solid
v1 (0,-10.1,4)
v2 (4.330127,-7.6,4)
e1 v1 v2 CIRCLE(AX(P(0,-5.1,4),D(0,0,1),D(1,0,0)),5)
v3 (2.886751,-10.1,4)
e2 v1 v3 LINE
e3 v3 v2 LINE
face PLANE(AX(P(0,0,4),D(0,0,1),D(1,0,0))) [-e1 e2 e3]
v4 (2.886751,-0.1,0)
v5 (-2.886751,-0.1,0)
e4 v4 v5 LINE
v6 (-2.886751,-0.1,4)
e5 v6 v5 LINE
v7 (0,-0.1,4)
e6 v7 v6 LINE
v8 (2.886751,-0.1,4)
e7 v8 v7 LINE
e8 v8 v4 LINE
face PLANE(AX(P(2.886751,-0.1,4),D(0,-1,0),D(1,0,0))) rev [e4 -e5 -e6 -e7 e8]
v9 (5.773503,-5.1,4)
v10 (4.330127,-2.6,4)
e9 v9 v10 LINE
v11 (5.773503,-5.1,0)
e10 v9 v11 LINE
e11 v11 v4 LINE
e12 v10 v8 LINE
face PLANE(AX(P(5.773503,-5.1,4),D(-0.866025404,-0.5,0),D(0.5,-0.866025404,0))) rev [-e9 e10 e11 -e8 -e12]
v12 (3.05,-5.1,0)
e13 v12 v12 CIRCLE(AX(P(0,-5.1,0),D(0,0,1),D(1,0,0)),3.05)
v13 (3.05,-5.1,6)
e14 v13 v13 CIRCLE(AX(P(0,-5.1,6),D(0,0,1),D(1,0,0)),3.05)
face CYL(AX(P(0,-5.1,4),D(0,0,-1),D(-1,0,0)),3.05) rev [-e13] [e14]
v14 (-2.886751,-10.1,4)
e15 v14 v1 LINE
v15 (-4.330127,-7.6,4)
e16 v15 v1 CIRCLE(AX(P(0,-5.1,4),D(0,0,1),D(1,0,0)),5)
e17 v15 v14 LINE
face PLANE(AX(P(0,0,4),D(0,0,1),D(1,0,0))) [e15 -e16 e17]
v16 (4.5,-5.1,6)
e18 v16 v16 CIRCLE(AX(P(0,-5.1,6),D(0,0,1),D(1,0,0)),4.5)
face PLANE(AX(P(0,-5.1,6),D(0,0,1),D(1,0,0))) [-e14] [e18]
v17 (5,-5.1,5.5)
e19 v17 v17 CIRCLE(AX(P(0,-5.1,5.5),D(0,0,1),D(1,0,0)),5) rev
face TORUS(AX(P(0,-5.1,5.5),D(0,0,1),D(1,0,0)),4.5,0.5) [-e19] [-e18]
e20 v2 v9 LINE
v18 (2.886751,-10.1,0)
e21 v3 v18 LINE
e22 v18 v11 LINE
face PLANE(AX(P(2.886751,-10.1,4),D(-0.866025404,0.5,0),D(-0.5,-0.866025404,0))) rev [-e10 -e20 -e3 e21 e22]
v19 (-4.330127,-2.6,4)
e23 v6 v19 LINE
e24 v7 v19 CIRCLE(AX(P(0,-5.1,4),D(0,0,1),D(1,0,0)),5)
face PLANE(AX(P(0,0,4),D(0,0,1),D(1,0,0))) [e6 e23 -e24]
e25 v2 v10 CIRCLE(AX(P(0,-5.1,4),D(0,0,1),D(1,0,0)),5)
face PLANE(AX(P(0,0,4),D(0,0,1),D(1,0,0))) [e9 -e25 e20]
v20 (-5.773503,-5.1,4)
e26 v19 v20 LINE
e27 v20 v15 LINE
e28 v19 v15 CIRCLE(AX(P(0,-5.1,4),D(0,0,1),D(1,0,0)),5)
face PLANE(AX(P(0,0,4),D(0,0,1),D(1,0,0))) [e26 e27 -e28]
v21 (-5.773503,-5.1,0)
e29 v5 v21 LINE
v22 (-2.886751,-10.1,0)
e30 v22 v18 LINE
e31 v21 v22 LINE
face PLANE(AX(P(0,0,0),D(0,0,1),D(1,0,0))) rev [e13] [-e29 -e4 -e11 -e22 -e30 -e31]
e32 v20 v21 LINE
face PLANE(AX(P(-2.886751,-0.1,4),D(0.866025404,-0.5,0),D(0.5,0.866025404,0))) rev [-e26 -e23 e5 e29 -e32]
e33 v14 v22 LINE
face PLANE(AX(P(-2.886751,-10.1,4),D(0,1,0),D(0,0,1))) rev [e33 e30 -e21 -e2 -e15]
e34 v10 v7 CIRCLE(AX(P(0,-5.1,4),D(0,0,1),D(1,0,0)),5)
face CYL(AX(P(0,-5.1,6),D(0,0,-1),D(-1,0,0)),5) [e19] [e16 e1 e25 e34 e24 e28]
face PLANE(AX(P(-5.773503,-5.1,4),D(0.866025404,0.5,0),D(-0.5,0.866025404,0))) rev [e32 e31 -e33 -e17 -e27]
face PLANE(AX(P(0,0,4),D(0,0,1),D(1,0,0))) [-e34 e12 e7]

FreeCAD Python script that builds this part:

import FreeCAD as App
import Part
import Sketcher
Q = App.Units.Quantity


def edges_at(feature, points):
    """Names of the edges that pass closest to the given points."""
    edges = feature.Shape.Edges
    near = lambda p: min(range(len(edges)), key=lambda i: edges[i].distToShape(Part.Vertex(*p))[0])
    return sorted({f"Edge{near(p) + 1}" for p in points})


def add_polygon(sketch, points):
    """Adds a closed chain of lines whose ends are joined by coincident constraints."""
    first, n = sketch.GeometryCount, len(points)
    for a, b in zip(points, points[1:] + points[:1]):
        sketch.addGeometry(Part.LineSegment(App.Vector(*a, 0), App.Vector(*b, 0)), False)
    for i in range(n):
        sketch.addConstraint(Sketcher.Constraint("Coincident", first + i, 2, first + (i + 1) % n, 1))

doc = App.newDocument("Part")
body = doc.addObject("PartDesign::Body", "Body")

sketch1 = doc.addObject("Sketcher::SketchObject", "Sketch")
body.addObject(sketch1)
sketch1.AttachmentSupport = (doc.XY_Plane, [""])
sketch1.MapMode = "FlatFace"
add_polygon(sketch1, [(-2.9, -0.1), (-5.8, -5.1), (-2.9, -10.1), (2.9, -10.1), (5.8, -5.1), (2.9, -0.1)])
sketch1.addGeometry(Part.Circle(App.Vector(0, -5.1, 0), App.Vector(0, 0, 1), 3), False)
sketch1.addConstraint([
    Sketcher.Constraint("Horizontal", 2),
    Sketcher.Constraint("Horizontal", 5),
    Sketcher.Constraint("Symmetric", 0, 2, 3, 2, -2),
    Sketcher.Constraint("PointOnObject", 6, 3, -2),
    Sketcher.Constraint("Parallel", 0, 3),
    Sketcher.Constraint("Parallel", 1, 4),
    Sketcher.Constraint("Horizontal", 6, 3, 0, 2),
    Sketcher.Constraint("Vertical", 2, 2, 4, 2),
    Sketcher.Constraint("Vertical", 1, 2, 5, 2),
    Sketcher.Constraint("Diameter", 6, Q("6.1 mm")),
    Sketcher.Constraint("Angle", 0, Q("-120 deg")),
    Sketcher.Constraint("DistanceY", 1, 2, 6, 3, Q("5 mm")),
    Sketcher.Constraint("DistanceY", 6, 3, -1, 1, Q("5.1 mm")),
    Sketcher.Constraint("DistanceX", 2, 1, 2, 2, Q("5.773503 mm")),
])
pad1 = doc.addObject("PartDesign::Pad", "Pad")
body.addObject(pad1)
pad1.Profile = sketch1
pad1.Length = 4

sketch2 = doc.addObject("Sketcher::SketchObject", "Sketch001")
body.addObject(sketch2)
sketch2.AttachmentSupport = (doc.XY_Plane, [""])
sketch2.MapMode = "FlatFace"
sketch2.AttachmentOffset = App.Placement(App.Vector(0, 0, 4), App.Rotation())
sketch2.addGeometry([
    Part.Circle(App.Vector(0, -5.1, 0), App.Vector(0, 0, 1), 5),
    Part.Circle(App.Vector(0, -5.1, 0), App.Vector(0, 0, 1), 3),
], False)
sketch2.addConstraint([
    Sketcher.Constraint("Coincident", 1, 3, 0, 3),
    Sketcher.Constraint("PointOnObject", 0, 3, -2),
    Sketcher.Constraint("Diameter", 0, Q("10 mm")),
    Sketcher.Constraint("Diameter", 1, Q("6.1 mm")),
    Sketcher.Constraint("DistanceY", 0, 3, -1, 1, Q("5.1 mm")),
])
pad2 = doc.addObject("PartDesign::Pad", "Pad001")
body.addObject(pad2)
pad2.Profile = sketch2
pad2.Length = 2
doc.recompute()

fillet = doc.addObject("PartDesign::Fillet", "Fillet")
body.addObject(fillet)
fillet.Base = (pad2, edges_at(pad2, [(4.33, -7.6, 6)]))
fillet.Radius = 0.5

doc.recompute()
